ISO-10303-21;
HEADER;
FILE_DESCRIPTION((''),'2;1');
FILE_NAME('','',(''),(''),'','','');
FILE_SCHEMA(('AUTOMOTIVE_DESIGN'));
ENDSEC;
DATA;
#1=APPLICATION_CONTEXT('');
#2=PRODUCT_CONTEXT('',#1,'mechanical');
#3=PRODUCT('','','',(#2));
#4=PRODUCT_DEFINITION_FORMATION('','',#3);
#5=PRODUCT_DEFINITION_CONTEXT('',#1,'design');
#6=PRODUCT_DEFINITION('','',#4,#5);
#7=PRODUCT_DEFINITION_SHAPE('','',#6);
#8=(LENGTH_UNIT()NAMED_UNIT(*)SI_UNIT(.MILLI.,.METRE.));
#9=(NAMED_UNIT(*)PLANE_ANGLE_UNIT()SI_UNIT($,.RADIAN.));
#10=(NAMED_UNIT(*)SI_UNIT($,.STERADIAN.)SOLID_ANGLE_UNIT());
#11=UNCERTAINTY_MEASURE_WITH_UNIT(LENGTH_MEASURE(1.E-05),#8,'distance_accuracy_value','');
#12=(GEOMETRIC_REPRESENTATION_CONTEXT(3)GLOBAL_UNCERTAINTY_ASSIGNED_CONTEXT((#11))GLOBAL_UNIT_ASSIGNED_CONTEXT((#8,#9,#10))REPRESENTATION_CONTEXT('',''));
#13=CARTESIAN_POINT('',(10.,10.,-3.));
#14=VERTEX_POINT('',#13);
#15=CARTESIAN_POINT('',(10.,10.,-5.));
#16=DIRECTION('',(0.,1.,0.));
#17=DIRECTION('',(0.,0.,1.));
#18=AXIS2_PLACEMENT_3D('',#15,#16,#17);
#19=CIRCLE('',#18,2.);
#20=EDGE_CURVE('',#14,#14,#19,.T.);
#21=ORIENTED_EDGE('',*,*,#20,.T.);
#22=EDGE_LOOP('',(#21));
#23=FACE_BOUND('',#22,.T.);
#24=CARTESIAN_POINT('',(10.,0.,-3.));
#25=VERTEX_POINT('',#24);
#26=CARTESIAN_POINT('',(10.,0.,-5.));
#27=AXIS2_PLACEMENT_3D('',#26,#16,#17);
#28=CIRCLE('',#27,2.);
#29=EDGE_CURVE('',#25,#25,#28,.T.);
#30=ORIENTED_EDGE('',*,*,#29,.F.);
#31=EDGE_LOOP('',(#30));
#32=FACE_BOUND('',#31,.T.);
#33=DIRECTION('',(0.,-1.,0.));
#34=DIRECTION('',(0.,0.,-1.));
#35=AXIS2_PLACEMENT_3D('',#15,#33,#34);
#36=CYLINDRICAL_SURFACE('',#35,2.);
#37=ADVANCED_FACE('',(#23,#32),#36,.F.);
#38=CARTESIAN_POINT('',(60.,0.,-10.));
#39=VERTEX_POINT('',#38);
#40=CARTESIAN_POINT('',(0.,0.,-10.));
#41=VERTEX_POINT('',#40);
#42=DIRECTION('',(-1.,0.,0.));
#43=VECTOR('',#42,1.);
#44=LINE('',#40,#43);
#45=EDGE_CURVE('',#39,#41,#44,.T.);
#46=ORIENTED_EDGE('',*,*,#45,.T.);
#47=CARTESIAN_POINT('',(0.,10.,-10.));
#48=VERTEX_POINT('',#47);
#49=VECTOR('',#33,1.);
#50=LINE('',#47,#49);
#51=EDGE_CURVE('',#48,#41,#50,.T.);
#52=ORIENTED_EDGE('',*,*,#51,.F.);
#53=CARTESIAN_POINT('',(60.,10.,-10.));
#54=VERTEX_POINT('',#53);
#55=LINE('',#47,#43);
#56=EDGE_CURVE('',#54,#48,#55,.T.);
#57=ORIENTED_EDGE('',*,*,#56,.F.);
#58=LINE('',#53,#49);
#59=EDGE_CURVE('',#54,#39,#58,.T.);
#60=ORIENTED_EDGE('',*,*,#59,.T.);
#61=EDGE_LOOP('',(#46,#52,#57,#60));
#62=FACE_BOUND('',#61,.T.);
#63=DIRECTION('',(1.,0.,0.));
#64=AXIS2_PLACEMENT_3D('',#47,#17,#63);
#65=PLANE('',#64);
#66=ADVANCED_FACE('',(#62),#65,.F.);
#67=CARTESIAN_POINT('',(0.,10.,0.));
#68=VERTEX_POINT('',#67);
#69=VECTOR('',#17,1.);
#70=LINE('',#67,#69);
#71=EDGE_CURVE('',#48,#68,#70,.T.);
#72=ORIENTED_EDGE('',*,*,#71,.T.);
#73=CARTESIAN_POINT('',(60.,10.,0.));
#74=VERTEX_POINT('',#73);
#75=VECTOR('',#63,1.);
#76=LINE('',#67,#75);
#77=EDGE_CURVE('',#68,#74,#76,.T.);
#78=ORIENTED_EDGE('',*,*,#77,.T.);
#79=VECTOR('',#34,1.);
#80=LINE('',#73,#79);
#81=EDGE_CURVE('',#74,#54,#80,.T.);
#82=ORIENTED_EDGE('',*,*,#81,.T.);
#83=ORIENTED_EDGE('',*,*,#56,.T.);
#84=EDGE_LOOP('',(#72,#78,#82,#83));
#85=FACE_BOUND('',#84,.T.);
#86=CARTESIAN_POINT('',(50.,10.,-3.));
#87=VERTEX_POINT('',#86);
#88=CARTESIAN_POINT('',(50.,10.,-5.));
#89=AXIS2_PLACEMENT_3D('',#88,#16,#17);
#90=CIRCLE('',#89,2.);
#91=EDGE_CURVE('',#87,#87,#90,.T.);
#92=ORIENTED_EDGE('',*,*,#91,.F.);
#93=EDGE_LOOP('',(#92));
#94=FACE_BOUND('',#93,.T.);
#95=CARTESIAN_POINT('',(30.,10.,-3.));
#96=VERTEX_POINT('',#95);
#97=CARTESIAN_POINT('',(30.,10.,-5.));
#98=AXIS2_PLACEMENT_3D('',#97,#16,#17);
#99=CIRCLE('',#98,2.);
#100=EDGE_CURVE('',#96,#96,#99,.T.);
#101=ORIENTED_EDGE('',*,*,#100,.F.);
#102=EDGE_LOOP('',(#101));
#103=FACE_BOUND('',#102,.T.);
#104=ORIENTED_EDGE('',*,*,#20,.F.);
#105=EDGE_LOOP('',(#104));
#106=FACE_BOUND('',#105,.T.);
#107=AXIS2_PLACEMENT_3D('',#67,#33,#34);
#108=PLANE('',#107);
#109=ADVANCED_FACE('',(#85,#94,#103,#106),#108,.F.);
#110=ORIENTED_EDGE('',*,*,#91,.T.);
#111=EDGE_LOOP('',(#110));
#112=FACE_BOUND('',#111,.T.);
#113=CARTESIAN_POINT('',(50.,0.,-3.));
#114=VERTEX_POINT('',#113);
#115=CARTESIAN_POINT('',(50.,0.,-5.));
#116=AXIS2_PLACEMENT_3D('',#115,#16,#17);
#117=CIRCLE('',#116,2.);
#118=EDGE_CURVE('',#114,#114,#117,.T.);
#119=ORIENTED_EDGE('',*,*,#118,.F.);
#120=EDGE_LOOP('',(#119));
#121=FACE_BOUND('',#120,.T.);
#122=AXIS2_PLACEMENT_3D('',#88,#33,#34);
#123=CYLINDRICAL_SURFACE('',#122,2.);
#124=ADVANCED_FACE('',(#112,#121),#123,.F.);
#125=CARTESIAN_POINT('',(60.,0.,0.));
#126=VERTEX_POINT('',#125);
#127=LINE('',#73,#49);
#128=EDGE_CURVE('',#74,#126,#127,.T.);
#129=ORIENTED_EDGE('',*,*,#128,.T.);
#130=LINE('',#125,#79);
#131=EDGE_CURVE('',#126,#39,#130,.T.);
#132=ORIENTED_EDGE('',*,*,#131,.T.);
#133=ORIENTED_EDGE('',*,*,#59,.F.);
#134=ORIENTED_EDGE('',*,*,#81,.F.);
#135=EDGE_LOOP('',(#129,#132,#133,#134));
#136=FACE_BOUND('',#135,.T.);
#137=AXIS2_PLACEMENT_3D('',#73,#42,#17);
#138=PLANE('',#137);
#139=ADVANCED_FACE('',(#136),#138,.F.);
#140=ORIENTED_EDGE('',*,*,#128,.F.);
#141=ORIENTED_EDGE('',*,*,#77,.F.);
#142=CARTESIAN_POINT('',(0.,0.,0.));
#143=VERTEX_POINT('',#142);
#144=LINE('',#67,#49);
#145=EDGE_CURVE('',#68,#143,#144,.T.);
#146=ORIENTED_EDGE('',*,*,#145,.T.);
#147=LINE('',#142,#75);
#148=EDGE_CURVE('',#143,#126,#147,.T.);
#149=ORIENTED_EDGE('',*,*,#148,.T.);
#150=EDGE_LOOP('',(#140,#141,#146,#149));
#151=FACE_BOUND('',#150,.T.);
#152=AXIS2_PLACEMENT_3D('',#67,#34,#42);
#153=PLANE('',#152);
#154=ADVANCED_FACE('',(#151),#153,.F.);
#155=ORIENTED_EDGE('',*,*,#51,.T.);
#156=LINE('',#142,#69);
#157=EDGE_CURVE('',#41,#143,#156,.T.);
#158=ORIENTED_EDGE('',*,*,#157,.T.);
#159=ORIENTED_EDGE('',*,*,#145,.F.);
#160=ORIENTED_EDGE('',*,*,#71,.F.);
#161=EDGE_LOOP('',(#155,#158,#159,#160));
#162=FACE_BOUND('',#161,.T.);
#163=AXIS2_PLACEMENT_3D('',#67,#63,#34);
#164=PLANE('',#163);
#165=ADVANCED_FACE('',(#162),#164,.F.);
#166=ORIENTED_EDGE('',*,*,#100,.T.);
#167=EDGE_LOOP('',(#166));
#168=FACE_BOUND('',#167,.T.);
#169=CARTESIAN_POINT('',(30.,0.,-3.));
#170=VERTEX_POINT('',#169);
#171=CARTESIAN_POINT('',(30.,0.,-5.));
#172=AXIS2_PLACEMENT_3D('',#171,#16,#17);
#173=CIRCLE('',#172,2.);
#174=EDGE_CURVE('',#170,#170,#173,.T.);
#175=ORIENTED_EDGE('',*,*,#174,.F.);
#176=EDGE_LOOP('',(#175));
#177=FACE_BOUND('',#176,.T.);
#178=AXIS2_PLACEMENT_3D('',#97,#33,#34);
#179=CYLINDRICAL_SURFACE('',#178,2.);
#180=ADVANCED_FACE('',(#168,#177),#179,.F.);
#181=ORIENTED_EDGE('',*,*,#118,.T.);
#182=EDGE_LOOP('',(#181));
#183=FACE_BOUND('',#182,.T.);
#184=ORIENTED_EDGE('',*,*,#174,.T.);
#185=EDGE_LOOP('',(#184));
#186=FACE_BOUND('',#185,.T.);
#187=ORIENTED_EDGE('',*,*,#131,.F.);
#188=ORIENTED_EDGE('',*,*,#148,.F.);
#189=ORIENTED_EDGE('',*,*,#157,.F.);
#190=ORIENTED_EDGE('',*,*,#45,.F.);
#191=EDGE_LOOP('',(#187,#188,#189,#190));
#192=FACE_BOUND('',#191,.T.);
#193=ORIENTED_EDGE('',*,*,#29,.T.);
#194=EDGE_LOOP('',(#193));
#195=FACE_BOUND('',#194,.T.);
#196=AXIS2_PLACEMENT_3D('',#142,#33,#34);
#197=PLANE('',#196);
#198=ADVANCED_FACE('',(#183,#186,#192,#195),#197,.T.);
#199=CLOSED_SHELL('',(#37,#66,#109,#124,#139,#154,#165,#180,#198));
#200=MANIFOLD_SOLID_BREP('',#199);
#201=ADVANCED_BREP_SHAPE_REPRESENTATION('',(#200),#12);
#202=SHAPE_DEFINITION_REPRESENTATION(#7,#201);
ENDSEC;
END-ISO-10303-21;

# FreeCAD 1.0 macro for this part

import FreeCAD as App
import Part
import Sketcher
Q = App.Units.Quantity

doc = App.newDocument("Part")
body = doc.addObject("PartDesign::Body", "Body")

# Sketch on XZ plane
sketch1 = doc.addObject("Sketcher::SketchObject", "Sketch")
body.addObject(sketch1)
sketch1.AttachmentSupport = (doc.XZ_Plane, [""])
sketch1.MapMode = "FlatFace"
sketch1.addGeometry(Part.LineSegment(App.Vector(0, -10, 0), App.Vector(0, 0, 0)), False)
sketch1.addGeometry(Part.LineSegment(App.Vector(0, 0, 0), App.Vector(60, 0, 0)), False)
sketch1.addGeometry(Part.LineSegment(App.Vector(60, 0, 0), App.Vector(60, -10, 0)), False)
sketch1.addGeometry(Part.LineSegment(App.Vector(60, -10, 0), App.Vector(0, -10, 0)), False)
sketch1.addGeometry(Part.Circle(App.Vector(10, -5, 0), App.Vector(0, 0, 1), 2), False)
sketch1.addGeometry(Part.Circle(App.Vector(30, -5, 0), App.Vector(0, 0, 1), 2), False)
sketch1.addGeometry(Part.Circle(App.Vector(50, -5, 0), App.Vector(0, 0, 1), 2), False)
sketch1.addConstraint(Sketcher.Constraint("Coincident", 0, 2, 1, 1))
sketch1.addConstraint(Sketcher.Constraint("Coincident", 1, 2, 2, 1))
sketch1.addConstraint(Sketcher.Constraint("Coincident", 2, 2, 3, 1))
sketch1.addConstraint(Sketcher.Constraint("Coincident", 3, 2, 0, 1))
sketch1.addConstraint(Sketcher.Constraint("Vertical", 0))
sketch1.addConstraint(Sketcher.Constraint("Horizontal", 1))
sketch1.addConstraint(Sketcher.Constraint("Vertical", 2))
sketch1.addConstraint(Sketcher.Constraint("Horizontal", 3))
sketch1.addConstraint(Sketcher.Constraint("Coincident", 0, 2, -1, 1))
sketch1.addConstraint(Sketcher.Constraint("Equal", 4, 5))
sketch1.addConstraint(Sketcher.Constraint("Equal", 5, 6))
sketch1.addConstraint(Sketcher.Constraint("Horizontal", 4, 3, 5, 3))
sketch1.addConstraint(Sketcher.Constraint("Horizontal", 5, 3, 6, 3))
sketch1.addConstraint(Sketcher.Constraint("Diameter", 4, Q("4 mm")))
sketch1.addConstraint(Sketcher.Constraint("DistanceX", 1, 1, 1, 2, Q("60 mm")))
sketch1.addConstraint(Sketcher.Constraint("DistanceY", 0, 1, 0, 2, Q("10 mm")))
sketch1.addConstraint(Sketcher.Constraint("DistanceX", -1, 1, 4, 3, Q("10 mm")))
sketch1.addConstraint(Sketcher.Constraint("DistanceY", 4, 3, -1, 1, Q("5 mm")))
sketch1.addConstraint(Sketcher.Constraint("DistanceX", -1, 1, 5, 3, Q("30 mm")))
sketch1.addConstraint(Sketcher.Constraint("DistanceX", -1, 1, 6, 3, Q("50 mm")))
pad1 = doc.addObject("PartDesign::Pad", "Pad")
body.addObject(pad1)
pad1.Profile = sketch1
pad1.Length = 10
pad1.Reversed = True

doc.recompute()
